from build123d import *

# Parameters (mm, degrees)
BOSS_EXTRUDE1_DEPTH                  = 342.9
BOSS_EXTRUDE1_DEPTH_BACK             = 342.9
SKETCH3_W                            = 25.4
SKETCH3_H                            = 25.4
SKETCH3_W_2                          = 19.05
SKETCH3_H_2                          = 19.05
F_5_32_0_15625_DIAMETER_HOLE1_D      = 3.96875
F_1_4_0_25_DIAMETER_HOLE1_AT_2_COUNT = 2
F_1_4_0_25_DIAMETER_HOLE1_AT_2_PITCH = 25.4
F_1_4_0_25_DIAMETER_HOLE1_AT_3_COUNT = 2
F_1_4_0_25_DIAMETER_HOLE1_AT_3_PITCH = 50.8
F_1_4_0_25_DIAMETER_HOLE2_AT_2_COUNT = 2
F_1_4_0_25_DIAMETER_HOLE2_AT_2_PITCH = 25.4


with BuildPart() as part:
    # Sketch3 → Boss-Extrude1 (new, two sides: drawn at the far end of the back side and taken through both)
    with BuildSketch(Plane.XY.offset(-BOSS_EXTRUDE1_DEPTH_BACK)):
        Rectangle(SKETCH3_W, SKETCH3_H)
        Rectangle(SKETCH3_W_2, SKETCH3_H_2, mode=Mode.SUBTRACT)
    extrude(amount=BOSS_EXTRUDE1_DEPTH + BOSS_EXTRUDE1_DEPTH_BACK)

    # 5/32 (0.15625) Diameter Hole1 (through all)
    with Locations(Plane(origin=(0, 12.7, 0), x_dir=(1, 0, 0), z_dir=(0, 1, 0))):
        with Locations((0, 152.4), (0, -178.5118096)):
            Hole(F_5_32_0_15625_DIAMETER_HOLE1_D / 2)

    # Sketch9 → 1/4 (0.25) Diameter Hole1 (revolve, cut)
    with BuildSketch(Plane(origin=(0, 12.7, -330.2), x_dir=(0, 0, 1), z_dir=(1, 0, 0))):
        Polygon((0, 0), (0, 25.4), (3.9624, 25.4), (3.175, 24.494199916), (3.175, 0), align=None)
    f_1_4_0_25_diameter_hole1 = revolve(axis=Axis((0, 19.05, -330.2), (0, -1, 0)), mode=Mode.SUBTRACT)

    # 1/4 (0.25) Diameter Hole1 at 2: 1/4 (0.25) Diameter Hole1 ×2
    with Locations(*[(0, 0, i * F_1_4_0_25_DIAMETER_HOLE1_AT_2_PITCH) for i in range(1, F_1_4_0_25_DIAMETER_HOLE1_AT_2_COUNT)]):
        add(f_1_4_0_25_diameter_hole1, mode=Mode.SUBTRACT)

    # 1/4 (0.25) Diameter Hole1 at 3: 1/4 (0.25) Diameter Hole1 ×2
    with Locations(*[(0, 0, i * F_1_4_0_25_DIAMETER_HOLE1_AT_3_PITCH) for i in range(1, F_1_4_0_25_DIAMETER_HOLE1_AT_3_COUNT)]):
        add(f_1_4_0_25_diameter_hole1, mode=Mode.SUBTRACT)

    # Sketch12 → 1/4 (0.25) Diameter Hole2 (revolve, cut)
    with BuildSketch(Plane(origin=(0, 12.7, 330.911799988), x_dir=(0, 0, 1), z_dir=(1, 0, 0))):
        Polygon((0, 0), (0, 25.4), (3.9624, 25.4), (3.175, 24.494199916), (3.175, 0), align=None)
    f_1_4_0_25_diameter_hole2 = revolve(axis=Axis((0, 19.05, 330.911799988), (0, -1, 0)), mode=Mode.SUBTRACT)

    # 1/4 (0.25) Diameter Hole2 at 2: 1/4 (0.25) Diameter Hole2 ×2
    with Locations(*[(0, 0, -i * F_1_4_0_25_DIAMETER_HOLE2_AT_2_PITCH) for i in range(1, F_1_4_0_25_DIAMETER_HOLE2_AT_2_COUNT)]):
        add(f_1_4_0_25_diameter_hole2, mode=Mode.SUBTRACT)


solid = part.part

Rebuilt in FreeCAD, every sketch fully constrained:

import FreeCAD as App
import Part
import Sketcher
from FreeCAD import Vector
Q = App.Units.Quantity

doc = App.newDocument("Part")
body = doc.addObject("PartDesign::Body", "Body")

# Sketch on XY plane
sketch1 = doc.addObject("Sketcher::SketchObject", "Sketch")
body.addObject(sketch1)
sketch1.AttachmentSupport = (doc.XY_Plane, [""])
sketch1.MapMode = "FlatFace"
sketch1.addGeometry([
    Part.LineSegment(Vector(-13, 13, 0), Vector(-13, -13, 0)),  # 0
    Part.LineSegment(Vector(-13, -13, 0), Vector(13, -13, 0)),  # 1
    Part.LineSegment(Vector(13, -13, 0), Vector(13, 13, 0)),  # 2
    Part.LineSegment(Vector(13, 13, 0), Vector(-13, 13, 0)),  # 3
    Part.LineSegment(Vector(10, -10, 0), Vector(-10, -10, 0)),  # 4
    Part.LineSegment(Vector(-10, -10, 0), Vector(-10, 10, 0)),  # 5
    Part.LineSegment(Vector(-10, 10, 0), Vector(10, 10, 0)),  # 6
    Part.LineSegment(Vector(10, 10, 0), Vector(10, -10, 0)),  # 7
], False)
sketch1.addConstraint([
    Sketcher.Constraint("Coincident", 0, 2, 1, 1),
    Sketcher.Constraint("Coincident", 1, 2, 2, 1),
    Sketcher.Constraint("Coincident", 2, 2, 3, 1),
    Sketcher.Constraint("Coincident", 3, 2, 0, 1),
    Sketcher.Constraint("Coincident", 4, 2, 5, 1),
    Sketcher.Constraint("Coincident", 5, 2, 6, 1),
    Sketcher.Constraint("Coincident", 6, 2, 7, 1),
    Sketcher.Constraint("Coincident", 7, 2, 4, 1),
    Sketcher.Constraint("Vertical", 0),
    Sketcher.Constraint("Horizontal", 1),
    Sketcher.Constraint("Vertical", 2),
    Sketcher.Constraint("Horizontal", 3),
    Sketcher.Constraint("Horizontal", 4),
    Sketcher.Constraint("Vertical", 5),
    Sketcher.Constraint("Horizontal", 6),
    Sketcher.Constraint("Vertical", 7),
    Sketcher.Constraint("Symmetric", 0, 2, 2, 2, -1, 1),
    Sketcher.Constraint("Symmetric", 4, 2, 6, 2, -1, 1),
    Sketcher.Constraint("Equal", 3, 0),
    Sketcher.Constraint("Equal", 6, 5),
    Sketcher.Constraint("DistanceX", 1, 1, 1, 2, Q("1 in")),
    Sketcher.Constraint("DistanceX", 4, 2, 4, 1, Q("0.75 in")),
])
pad1 = doc.addObject("PartDesign::Pad", "Pad")
body.addObject(pad1)
pad1.Profile = sketch1
pad1.Type = "TwoLengths"
pad1.Length = Q("13.5 in")
pad1.Length2 = Q("13.5 in")

# Sketch on XZ plane
sketch2 = doc.addObject("Sketcher::SketchObject", "Sketch001")
body.addObject(sketch2)
sketch2.AttachmentSupport = (doc.XZ_Plane, [""])
sketch2.MapMode = "FlatFace"
sketch2.AttachmentOffset = App.Placement(Vector(0, 0, -0.5 * 25.4), App.Rotation())
sketch2.addGeometry([
    Part.Circle(Vector(0, -152.4, 0), Vector(0, 0, 1), 2),
    Part.Circle(Vector(0, 178.5, 0), Vector(0, 0, 1), 2),
], False)
sketch2.addConstraint([
    Sketcher.Constraint("Equal", 0, 1),
    Sketcher.Constraint("PointOnObject", 0, 3, -2),
    Sketcher.Constraint("PointOnObject", 1, 3, -2),
    Sketcher.Constraint("Diameter", 0, Q("0.15625 in")),
    Sketcher.Constraint("DistanceY", 0, 3, -1, 1, Q("6 in")),
    Sketcher.Constraint("DistanceY", -1, 1, 1, 3, 178.51181),
])
doc.recompute()
hole = doc.addObject("PartDesign::Hole", "Hole")
body.addObject(hole)
hole.Profile = sketch2
hole.ThreadType = "None"
hole.Diameter = Q("0.15625 in")
hole.DepthType = "ThroughAll"
hole.Reversed = True

# Sketch on YZ plane
sketch3 = doc.addObject("Sketcher::SketchObject", "Sketch002")
body.addObject(sketch3)
sketch3.AttachmentSupport = (doc.YZ_Plane, [""])
sketch3.MapMode = "FlatFace"
sketch3.addGeometry([
    Part.LineSegment(Vector(-12.7, -330.2, 0), Vector(12.7, -330.2, 0)),  # 0
    Part.LineSegment(Vector(12.7, -330.2, 0), Vector(12.7, -327, 0)),  # 1
    Part.LineSegment(Vector(12.7, -327, 0), Vector(-11.8, -327, 0)),  # 2
    Part.LineSegment(Vector(-11.8, -327, 0), Vector(-12.7, -326.2, 0)),  # 3
    Part.LineSegment(Vector(-12.7, -326.2, 0), Vector(-12.7, -330.2, 0)),  # 4
], False)
sketch3.addGeometry(Part.LineSegment(Vector(12.7, -330.2, 0), Vector(-12.7, -330.2, 0)), True)  # axis
sketch3.addConstraint([
    Sketcher.Constraint("Coincident", 0, 2, 1, 1),
    Sketcher.Constraint("Coincident", 1, 2, 2, 1),
    Sketcher.Constraint("Coincident", 2, 2, 3, 1),
    Sketcher.Constraint("Coincident", 3, 2, 4, 1),
    Sketcher.Constraint("Coincident", 4, 2, 0, 1),
    Sketcher.Constraint("Horizontal", 0),
    Sketcher.Constraint("Vertical", 1),
    Sketcher.Constraint("Horizontal", 2),
    Sketcher.Constraint("Vertical", 4),
    Sketcher.Constraint("Horizontal", 5),
    Sketcher.Constraint("Coincident", 5, 1, 0, 2),
    Sketcher.Constraint("Vertical", 3, 2, 5, 2),
    Sketcher.Constraint("DistanceX", 0, 1, 0, 2, Q("1 in")),
    Sketcher.Constraint("DistanceY", 0, 2, -1, 1, Q("13 in")),
    Sketcher.Constraint("Angle", 3, Q("139 deg")),
    Sketcher.Constraint("DistanceX", -1, 1, 0, 2, Q("0.5 in")),
    Sketcher.Constraint("DistanceY", 1, 1, 1, 2, Q("0.125 in")),
    Sketcher.Constraint("DistanceY", 4, 2, 4, 1, Q("0.156 in")),
])
groove = doc.addObject("PartDesign::Groove", "Groove")
body.addObject(groove)
groove.Profile = sketch3
groove.ReferenceAxis = (sketch3, ["Axis0"])
groove.Angle = 360
doc.recompute()

linearpattern = doc.addObject("PartDesign::LinearPattern", "LinearPattern")
body.addObject(linearpattern)
linearpattern.Originals = [groove]
linearpattern.Direction = (doc.Z_Axis, [""])
linearpattern.Mode = "offset"
linearpattern.Offset = Q("1 in")
linearpattern.Occurrences = 2
body.Tip = linearpattern
doc.recompute()

linearpattern2 = doc.addObject("PartDesign::LinearPattern", "LinearPattern001")
body.addObject(linearpattern2)
linearpattern2.Originals = [groove]
linearpattern2.Direction = (doc.Z_Axis, [""])
linearpattern2.Mode = "offset"
linearpattern2.Offset = Q("2 in")
linearpattern2.Occurrences = 2
body.Tip = linearpattern2

# Sketch on YZ plane
sketch4 = doc.addObject("Sketcher::SketchObject", "Sketch003")
body.addObject(sketch4)
sketch4.AttachmentSupport = (doc.YZ_Plane, [""])
sketch4.MapMode = "FlatFace"
sketch4.addGeometry([
    Part.LineSegment(Vector(-12.7, 330.9, 0), Vector(12.7, 330.9, 0)),  # 0
    Part.LineSegment(Vector(12.7, 330.9, 0), Vector(12.7, 334.1, 0)),  # 1
    Part.LineSegment(Vector(12.7, 334.1, 0), Vector(-11.8, 334.1, 0)),  # 2
    Part.LineSegment(Vector(-11.8, 334.1, 0), Vector(-12.7, 334.9, 0)),  # 3
    Part.LineSegment(Vector(-12.7, 334.9, 0), Vector(-12.7, 330.9, 0)),  # 4
], False)
sketch4.addGeometry(Part.LineSegment(Vector(12.7, 330.9, 0), Vector(-12.7, 330.9, 0)), True)  # axis
sketch4.addConstraint([
    Sketcher.Constraint("Coincident", 0, 2, 1, 1),
    Sketcher.Constraint("Coincident", 1, 2, 2, 1),
    Sketcher.Constraint("Coincident", 2, 2, 3, 1),
    Sketcher.Constraint("Coincident", 3, 2, 4, 1),
    Sketcher.Constraint("Coincident", 4, 2, 0, 1),
    Sketcher.Constraint("Horizontal", 0),
    Sketcher.Constraint("Vertical", 1),
    Sketcher.Constraint("Horizontal", 2),
    Sketcher.Constraint("Vertical", 4),
    Sketcher.Constraint("Horizontal", 5),
    Sketcher.Constraint("Coincident", 5, 1, 0, 2),
    Sketcher.Constraint("Vertical", 3, 2, 5, 2),
    Sketcher.Constraint("DistanceX", 0, 1, 0, 2, Q("1 in")),
    Sketcher.Constraint("Angle", 3, Q("139 deg")),
    Sketcher.Constraint("DistanceX", -1, 1, 0, 2, Q("0.5 in")),
    Sketcher.Constraint("DistanceY", 1, 1, 1, 2, Q("0.125 in")),
    Sketcher.Constraint("DistanceY", 4, 2, 4, 1, Q("0.156 in")),
    Sketcher.Constraint("DistanceY", -1, 1, 0, 2, 330.9118),
])
groove2 = doc.addObject("PartDesign::Groove", "Groove001")
body.addObject(groove2)
groove2.Profile = sketch4
groove2.ReferenceAxis = (sketch4, ["Axis0"])
groove2.Angle = 360
doc.recompute()

linearpattern3 = doc.addObject("PartDesign::LinearPattern", "LinearPattern002")
body.addObject(linearpattern3)
linearpattern3.Originals = [groove2]
linearpattern3.Direction = (doc.Z_Axis, [""])
linearpattern3.Mode = "offset"
linearpattern3.Offset = Q("1 in")
linearpattern3.Occurrences = 2
linearpattern3.Reversed = True
body.Tip = linearpattern3

doc.recompute()
